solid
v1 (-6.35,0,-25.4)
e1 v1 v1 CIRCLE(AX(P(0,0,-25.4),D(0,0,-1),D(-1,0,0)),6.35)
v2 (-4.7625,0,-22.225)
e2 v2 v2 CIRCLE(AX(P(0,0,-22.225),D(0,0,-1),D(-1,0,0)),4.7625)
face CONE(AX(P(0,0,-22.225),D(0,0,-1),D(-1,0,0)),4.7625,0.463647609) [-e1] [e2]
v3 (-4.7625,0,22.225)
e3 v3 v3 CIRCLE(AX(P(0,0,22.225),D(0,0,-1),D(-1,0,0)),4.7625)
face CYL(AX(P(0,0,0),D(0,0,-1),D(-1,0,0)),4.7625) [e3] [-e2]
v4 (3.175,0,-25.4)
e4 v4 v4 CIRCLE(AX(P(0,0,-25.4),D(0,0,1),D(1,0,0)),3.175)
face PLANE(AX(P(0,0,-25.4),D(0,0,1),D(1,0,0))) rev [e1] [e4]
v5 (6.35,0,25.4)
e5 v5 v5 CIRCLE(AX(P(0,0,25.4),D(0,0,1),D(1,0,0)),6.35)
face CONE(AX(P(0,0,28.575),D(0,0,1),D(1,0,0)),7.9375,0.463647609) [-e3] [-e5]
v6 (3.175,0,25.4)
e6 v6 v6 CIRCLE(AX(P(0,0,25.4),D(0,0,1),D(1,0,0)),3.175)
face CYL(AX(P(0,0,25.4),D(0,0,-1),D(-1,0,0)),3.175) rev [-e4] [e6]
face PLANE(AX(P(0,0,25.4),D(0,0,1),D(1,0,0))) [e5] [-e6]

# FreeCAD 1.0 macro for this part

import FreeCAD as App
import Part
import Sketcher
Q = App.Units.Quantity


def add_polygon(sketch, points):
    """Adds a closed chain of lines whose ends are joined by coincident constraints."""
    first, n = sketch.GeometryCount, len(points)
    for a, b in zip(points, points[1:] + points[:1]):
        sketch.addGeometry(Part.LineSegment(App.Vector(*a, 0), App.Vector(*b, 0)), False)
    for i in range(n):
        sketch.addConstraint(Sketcher.Constraint("Coincident", first + i, 2, first + (i + 1) % n, 1))

doc = App.newDocument("Part")
params = doc.addObject("Spreadsheet::Sheet", "Params")
for row, (alias, value) in enumerate([
    ("sketch1_diameter", "0.5 in"),
    ("sketch1_diameter2", "0.25 in"),
    ("pad1_length", "2 in"),
    ("sketch2_height", "1.75 in"),
    ("sketch2_width", "0.125 in"),
    ("groove_angle", "360 deg"),
], start=1):
    params.set(f"A{row}", alias)
    params.set(f"B{row}", "=" + value)
    params.setAlias(f"B{row}", alias)

body = doc.addObject("PartDesign::Body", "Body")

sketch1 = doc.addObject("Sketcher::SketchObject", "Sketch")
body.addObject(sketch1)
sketch1.AttachmentSupport = (doc.XY_Plane, [""])
sketch1.MapMode = "FlatFace"
sketch1.addGeometry([
    Part.Circle(App.Vector(0, 0, 0), App.Vector(0, 0, 1), 6.3),
    Part.Circle(App.Vector(0, 0, 0), App.Vector(0, 0, 1), 3.2),
], False)
sketch1.addConstraint([
    Sketcher.Constraint("Coincident", 0, 3, -1, 1),
    Sketcher.Constraint("Coincident", 1, 3, -1, 1),
    Sketcher.Constraint("Diameter", 0, Q("0.5 in")),
    Sketcher.Constraint("Diameter", 1, Q("0.25 in")),
])
sketch1.setExpression("Constraints[2]", "Params.sketch1_diameter")
sketch1.setExpression("Constraints[3]", "Params.sketch1_diameter2")
pad1 = doc.addObject("PartDesign::Pad", "Pad")
body.addObject(pad1)
pad1.Profile = sketch1
pad1.setExpression("Length", "Params.pad1_length")
pad1.Midplane = True

sketch2 = doc.addObject("Sketcher::SketchObject", "Sketch001")
body.addObject(sketch2)
sketch2.AttachmentSupport = (doc.YZ_Plane, [""])
sketch2.MapMode = "FlatFace"
add_polygon(sketch2, [(11.1, 28.6), (7.9, 28.6), (4.8, 22.2), (4.8, -22.2), (7.9, -28.6), (11.1, -28.6)])
sketch2.addConstraint([
    Sketcher.Constraint("Horizontal", 0),
    Sketcher.Constraint("Vertical", 2),
    Sketcher.Constraint("Horizontal", 4),
    Sketcher.Constraint("Vertical", 5),
    Sketcher.Constraint("Symmetric", 0, 2, 3, 2, -1),
    Sketcher.Constraint("Equal", 1, 3),
    Sketcher.Constraint("DistanceY", 2, 2, 0, 2, Q("2 in")),
    Sketcher.Constraint("DistanceY", 2, 2, 2, 1, Q("1.75 in")),
    Sketcher.Constraint("DistanceX", 0, 2, 0, 1, Q("0.125 in")),
    Sketcher.Constraint("DistanceX", 2, 2, 4, 2, Q("0.25 in")),
    Sketcher.Constraint("DistanceX", -1, 1, 0, 2, Q("0.3125 in")),
])
sketch2.setExpression("Constraints[13]", "Params.sketch2_height")
sketch2.setExpression("Constraints[14]", "Params.sketch2_width")
groove = doc.addObject("PartDesign::Groove", "Groove")
body.addObject(groove)
groove.Profile = sketch2
groove.ReferenceAxis = (sketch2, ["V_Axis"])
groove.setExpression("Angle", "Params.groove_angle")

doc.recompute()
